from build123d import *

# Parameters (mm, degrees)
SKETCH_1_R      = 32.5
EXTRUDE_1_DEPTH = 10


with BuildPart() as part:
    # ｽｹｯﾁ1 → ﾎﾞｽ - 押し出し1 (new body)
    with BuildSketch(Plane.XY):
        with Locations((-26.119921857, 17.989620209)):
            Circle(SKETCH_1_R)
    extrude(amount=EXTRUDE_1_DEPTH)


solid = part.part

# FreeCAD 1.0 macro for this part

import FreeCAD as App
import Part
import Sketcher
Q = App.Units.Quantity

doc = App.newDocument("Part")
body = doc.addObject("PartDesign::Body", "Body")

# Sketch on XY plane
sketch1 = body.newObject("Sketcher::SketchObject", "Sketch")
sketch1.AttachmentSupport = (doc.getObject("XY_Plane"), [""])
sketch1.MapMode = "FlatFace"
sketch1.addGeometry(Part.Circle(App.Vector(-26.119922, 17.98962, 0), App.Vector(0, 0, 1), 32.5), False)
sketch1.addConstraint([
    Sketcher.Constraint("Diameter", 0, Q("65 mm")),
    Sketcher.Constraint("DistanceX", 0, 3, -1, 1, Q("26.119922 mm")),
    Sketcher.Constraint("DistanceY", -1, 1, 0, 3, Q("17.98962 mm")),
])
pad1 = body.newObject("PartDesign::Pad", "Pad")
pad1.Profile = sketch1
pad1.Length = 10

doc.recompute()
